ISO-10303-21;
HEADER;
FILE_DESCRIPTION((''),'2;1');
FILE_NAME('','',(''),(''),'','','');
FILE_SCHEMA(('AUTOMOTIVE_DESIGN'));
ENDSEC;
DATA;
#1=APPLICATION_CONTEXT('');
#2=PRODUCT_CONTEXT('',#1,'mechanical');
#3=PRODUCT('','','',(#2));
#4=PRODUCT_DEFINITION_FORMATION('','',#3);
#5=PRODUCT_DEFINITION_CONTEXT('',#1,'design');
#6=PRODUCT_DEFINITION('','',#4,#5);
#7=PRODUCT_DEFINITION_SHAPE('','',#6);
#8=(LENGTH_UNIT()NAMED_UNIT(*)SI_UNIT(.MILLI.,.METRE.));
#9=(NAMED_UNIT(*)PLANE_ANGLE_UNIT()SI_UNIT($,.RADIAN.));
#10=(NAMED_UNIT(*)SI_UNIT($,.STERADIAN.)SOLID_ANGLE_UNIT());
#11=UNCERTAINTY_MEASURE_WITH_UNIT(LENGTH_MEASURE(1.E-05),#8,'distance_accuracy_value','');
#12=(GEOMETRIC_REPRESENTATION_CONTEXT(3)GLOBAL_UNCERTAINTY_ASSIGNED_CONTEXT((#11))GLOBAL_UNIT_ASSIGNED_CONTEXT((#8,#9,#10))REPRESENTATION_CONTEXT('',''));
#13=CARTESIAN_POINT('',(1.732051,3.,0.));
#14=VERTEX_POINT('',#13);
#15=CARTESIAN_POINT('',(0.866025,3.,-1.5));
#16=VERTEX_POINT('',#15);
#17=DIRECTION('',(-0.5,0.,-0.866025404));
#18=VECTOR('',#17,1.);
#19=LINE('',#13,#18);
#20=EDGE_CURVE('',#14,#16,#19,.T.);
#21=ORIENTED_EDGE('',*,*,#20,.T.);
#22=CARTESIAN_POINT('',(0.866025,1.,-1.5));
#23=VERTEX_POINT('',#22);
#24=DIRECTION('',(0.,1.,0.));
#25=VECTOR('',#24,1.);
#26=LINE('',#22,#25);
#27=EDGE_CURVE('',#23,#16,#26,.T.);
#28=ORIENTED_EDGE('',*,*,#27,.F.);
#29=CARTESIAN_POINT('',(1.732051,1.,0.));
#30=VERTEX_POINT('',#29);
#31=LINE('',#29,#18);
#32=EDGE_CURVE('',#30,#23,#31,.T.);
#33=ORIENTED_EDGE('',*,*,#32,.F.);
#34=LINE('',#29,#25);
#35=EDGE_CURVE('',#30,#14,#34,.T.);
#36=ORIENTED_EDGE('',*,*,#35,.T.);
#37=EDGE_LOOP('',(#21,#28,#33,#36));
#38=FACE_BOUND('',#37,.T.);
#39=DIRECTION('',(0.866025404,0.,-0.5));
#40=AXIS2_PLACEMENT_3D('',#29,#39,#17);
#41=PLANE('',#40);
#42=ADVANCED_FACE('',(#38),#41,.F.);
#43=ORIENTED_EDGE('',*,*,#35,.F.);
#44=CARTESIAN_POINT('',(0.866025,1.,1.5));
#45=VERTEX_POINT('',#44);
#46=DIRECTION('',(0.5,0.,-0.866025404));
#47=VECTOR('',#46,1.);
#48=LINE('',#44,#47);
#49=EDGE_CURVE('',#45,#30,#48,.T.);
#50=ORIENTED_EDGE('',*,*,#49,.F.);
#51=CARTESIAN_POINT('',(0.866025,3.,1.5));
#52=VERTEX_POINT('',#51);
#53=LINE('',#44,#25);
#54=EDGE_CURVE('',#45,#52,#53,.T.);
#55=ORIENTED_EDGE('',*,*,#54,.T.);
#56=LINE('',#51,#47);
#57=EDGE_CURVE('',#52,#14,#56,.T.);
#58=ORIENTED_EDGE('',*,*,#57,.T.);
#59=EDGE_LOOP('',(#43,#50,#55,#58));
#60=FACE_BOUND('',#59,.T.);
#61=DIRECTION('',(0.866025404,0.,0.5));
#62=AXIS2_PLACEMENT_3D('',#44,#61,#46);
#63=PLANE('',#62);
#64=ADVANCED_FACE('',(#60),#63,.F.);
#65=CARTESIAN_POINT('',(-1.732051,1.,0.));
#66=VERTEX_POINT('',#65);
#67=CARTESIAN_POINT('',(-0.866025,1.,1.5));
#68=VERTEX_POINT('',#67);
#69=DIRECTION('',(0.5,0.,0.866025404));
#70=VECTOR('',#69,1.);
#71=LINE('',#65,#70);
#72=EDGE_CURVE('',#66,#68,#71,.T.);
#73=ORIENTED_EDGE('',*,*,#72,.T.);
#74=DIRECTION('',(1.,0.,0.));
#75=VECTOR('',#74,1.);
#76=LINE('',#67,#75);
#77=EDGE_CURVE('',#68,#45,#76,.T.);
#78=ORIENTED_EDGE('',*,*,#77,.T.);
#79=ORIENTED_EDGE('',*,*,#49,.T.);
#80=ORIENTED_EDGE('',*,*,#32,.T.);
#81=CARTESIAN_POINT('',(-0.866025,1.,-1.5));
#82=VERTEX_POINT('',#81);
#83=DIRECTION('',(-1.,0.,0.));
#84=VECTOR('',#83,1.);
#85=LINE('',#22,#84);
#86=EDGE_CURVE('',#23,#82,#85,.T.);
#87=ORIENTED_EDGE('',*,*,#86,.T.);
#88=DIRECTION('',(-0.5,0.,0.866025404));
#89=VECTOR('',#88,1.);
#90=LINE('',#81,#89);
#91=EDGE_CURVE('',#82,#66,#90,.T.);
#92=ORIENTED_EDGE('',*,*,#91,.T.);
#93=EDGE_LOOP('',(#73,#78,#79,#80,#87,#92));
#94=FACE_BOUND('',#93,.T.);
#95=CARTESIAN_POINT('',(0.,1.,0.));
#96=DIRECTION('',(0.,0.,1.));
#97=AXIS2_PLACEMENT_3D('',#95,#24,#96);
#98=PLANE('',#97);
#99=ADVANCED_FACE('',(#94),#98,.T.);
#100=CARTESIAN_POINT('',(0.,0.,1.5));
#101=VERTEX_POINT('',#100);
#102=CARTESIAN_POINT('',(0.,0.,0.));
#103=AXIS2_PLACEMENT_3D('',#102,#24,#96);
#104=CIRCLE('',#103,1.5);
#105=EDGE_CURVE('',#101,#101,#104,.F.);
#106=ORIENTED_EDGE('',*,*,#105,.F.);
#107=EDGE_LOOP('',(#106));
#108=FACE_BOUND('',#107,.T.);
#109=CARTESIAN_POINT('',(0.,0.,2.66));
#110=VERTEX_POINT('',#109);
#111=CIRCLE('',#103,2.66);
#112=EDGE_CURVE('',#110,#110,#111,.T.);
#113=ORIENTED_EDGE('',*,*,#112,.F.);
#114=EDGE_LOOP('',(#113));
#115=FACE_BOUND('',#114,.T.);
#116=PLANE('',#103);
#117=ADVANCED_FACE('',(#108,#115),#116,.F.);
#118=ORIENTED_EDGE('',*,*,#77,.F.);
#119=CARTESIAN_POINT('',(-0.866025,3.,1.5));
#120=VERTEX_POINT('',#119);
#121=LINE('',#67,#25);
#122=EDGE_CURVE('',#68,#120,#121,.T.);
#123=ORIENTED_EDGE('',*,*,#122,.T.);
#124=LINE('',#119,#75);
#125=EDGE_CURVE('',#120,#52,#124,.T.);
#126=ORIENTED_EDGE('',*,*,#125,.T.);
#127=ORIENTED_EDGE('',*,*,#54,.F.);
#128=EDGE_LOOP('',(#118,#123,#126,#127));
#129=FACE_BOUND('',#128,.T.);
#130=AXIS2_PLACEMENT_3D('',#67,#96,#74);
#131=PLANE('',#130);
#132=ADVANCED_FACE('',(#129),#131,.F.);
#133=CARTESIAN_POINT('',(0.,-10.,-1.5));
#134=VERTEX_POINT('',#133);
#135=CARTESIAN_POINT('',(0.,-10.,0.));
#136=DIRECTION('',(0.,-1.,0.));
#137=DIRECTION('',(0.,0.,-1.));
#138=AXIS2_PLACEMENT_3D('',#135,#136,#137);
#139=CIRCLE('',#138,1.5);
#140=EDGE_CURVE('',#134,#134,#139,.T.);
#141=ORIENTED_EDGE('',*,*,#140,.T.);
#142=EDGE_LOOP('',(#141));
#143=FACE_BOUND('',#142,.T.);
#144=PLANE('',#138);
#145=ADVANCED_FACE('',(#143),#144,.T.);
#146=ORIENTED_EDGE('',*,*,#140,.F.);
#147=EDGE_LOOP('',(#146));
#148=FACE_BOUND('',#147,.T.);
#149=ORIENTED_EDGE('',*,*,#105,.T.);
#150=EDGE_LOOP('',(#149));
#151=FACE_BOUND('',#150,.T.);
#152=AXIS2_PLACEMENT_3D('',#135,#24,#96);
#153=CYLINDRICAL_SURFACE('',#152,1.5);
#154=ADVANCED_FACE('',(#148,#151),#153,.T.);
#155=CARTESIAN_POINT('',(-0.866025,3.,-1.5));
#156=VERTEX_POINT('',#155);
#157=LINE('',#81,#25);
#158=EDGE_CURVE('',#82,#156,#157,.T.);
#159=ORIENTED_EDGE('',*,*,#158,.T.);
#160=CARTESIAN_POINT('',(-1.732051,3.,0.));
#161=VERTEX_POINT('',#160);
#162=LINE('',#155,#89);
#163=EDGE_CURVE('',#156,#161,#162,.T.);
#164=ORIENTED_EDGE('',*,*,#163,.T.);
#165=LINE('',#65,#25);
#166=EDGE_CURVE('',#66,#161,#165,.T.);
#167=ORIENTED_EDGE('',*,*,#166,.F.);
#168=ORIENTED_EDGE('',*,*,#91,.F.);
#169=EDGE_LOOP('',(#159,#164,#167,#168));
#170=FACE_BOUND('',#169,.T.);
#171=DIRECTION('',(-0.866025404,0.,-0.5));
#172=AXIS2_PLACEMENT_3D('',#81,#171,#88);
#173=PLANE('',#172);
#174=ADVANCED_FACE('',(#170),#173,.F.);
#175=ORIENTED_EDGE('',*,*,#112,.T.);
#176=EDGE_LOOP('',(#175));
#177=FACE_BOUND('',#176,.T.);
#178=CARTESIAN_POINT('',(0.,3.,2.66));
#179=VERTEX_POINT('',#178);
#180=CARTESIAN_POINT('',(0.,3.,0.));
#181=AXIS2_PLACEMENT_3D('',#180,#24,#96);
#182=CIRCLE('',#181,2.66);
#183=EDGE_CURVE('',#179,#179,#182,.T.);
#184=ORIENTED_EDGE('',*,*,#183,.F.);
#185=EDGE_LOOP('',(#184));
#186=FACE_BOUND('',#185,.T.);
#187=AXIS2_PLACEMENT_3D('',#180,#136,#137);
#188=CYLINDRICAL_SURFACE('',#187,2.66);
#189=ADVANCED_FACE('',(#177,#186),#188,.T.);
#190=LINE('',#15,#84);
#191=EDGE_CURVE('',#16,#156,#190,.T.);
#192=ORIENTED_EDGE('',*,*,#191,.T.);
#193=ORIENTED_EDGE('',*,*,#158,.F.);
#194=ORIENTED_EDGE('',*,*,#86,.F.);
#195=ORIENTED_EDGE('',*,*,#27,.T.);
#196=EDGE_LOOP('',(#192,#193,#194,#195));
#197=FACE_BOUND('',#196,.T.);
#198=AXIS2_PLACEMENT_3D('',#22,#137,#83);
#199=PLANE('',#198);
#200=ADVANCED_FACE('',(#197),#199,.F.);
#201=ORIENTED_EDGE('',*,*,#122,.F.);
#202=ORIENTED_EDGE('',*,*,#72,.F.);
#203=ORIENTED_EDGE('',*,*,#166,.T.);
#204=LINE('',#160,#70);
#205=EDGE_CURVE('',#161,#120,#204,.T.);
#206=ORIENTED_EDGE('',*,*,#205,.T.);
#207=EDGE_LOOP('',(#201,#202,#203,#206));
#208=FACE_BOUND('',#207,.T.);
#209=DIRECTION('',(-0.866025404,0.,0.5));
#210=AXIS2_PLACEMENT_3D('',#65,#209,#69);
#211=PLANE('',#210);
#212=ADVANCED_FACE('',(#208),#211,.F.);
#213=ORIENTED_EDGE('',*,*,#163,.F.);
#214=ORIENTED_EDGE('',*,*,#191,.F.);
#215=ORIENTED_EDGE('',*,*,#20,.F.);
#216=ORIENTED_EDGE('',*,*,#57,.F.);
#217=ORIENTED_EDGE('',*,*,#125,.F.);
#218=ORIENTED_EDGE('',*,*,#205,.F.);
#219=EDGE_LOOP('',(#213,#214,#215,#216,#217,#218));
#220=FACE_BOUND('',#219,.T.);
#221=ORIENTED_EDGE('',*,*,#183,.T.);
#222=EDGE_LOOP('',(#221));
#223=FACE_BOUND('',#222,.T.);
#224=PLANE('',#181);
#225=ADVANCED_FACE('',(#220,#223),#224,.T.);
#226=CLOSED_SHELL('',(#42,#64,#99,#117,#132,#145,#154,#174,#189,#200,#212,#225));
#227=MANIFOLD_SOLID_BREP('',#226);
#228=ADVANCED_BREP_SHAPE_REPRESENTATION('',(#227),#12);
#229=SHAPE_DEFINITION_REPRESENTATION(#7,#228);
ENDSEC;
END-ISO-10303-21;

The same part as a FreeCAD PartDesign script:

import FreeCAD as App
import Part
import Sketcher
from FreeCAD import Vector
Q = App.Units.Quantity

doc = App.newDocument("Part")
params = doc.addObject("Spreadsheet::Sheet", "Params")
for row, (alias, value) in enumerate([
    ("sketch1_diameter", "5.32 mm"),
    ("pad1_length", "3 mm"),
    ("pocket1_length", "2 mm"),
    ("sketch3_diameter", "3 mm"),
    ("pad2_length", "10 mm"),
], start=1):
    params.set(f"A{row}", alias)
    params.set(f"B{row}", "=" + value)
    params.setAlias(f"B{row}", alias)

body = doc.addObject("PartDesign::Body", "Body")

# Sketch on XZ plane
sketch1 = body.newObject("Sketcher::SketchObject", "Sketch")
sketch1.AttachmentSupport = (doc.getObject("XZ_Plane"), [""])
sketch1.MapMode = "FlatFace"
sketch1.addGeometry(Part.Circle(Vector(0, 0, 0), Vector(0, 0, 1), 2.66), False)
sketch1.addConstraint(Sketcher.Constraint("Coincident", 0, 3, -1, 1))
sketch1.addConstraint(Sketcher.Constraint("Diameter", 0, 5.32))
sketch1.setExpression("Constraints[1]", "Params.sketch1_diameter")
pad1 = body.newObject("PartDesign::Pad", "Pad")
pad1.Profile = sketch1
pad1.setExpression("Length", "Params.pad1_length")
pad1.Reversed = True

# Sketch on XZ plane
sketch2 = body.newObject("Sketcher::SketchObject", "Sketch001")
sketch2.AttachmentSupport = (doc.getObject("XZ_Plane"), [""])
sketch2.MapMode = "FlatFace"
sketch2.AttachmentOffset = App.Placement(Vector(0, 0, -3), App.Rotation())
sketch2.addGeometry(Part.LineSegment(Vector(1.732051, 0, 0), Vector(0.866025, -1.5, 0)), False)
sketch2.addGeometry(Part.LineSegment(Vector(0.866025, -1.5, 0), Vector(-0.866025, -1.5, 0)), False)
sketch2.addGeometry(Part.LineSegment(Vector(-0.866025, -1.5, 0), Vector(-1.732051, 0, 0)), False)
sketch2.addGeometry(Part.LineSegment(Vector(-1.732051, 0, 0), Vector(-0.866025, 1.5, 0)), False)
sketch2.addGeometry(Part.LineSegment(Vector(-0.866025, 1.5, 0), Vector(0.866025, 1.5, 0)), False)
sketch2.addGeometry(Part.LineSegment(Vector(0.866025, 1.5, 0), Vector(1.732051, 0, 0)), False)
sketch2.addConstraint(Sketcher.Constraint("Coincident", 0, 2, 1, 1))
sketch2.addConstraint(Sketcher.Constraint("Coincident", 1, 2, 2, 1))
sketch2.addConstraint(Sketcher.Constraint("Coincident", 2, 2, 3, 1))
sketch2.addConstraint(Sketcher.Constraint("Coincident", 3, 2, 4, 1))
sketch2.addConstraint(Sketcher.Constraint("Coincident", 4, 2, 5, 1))
sketch2.addConstraint(Sketcher.Constraint("Coincident", 5, 2, 0, 1))
sketch2.addConstraint(Sketcher.Constraint("Horizontal", 1))
sketch2.addConstraint(Sketcher.Constraint("Horizontal", 4))
sketch2.addConstraint(Sketcher.Constraint("Symmetric", 0, 2, 3, 2, -1, 1))
sketch2.addConstraint(Sketcher.Constraint("Symmetric", 2, 2, 5, 2, -1, 1))
sketch2.addConstraint(Sketcher.Constraint("PointOnObject", 2, 2, -1))
sketch2.addConstraint(Sketcher.Constraint("Parallel", 2, 5))
sketch2.addConstraint(Sketcher.Constraint("Vertical", 1, 2, 3, 2))
sketch2.addConstraint(Sketcher.Constraint("Angle", 0, Q("-120 deg")))
sketch2.addConstraint(Sketcher.Constraint("DistanceY", 1, 2, 3, 2, 3.0))
sketch2.addConstraint(Sketcher.Constraint("DistanceX", 1, 2, 1, 1, 1.732051))
pocket1 = body.newObject("PartDesign::Pocket", "Pocket")
pocket1.Profile = sketch2
pocket1.setExpression("Length", "Params.pocket1_length")
pocket1.Reversed = True

# Sketch on XZ plane
sketch3 = body.newObject("Sketcher::SketchObject", "Sketch002")
sketch3.AttachmentSupport = (doc.getObject("XZ_Plane"), [""])
sketch3.MapMode = "FlatFace"
sketch3.addGeometry(Part.Circle(Vector(0, 0, 0), Vector(0, 0, 1), 1.5), False)
sketch3.addConstraint(Sketcher.Constraint("Coincident", 0, 3, -1, 1))
sketch3.addConstraint(Sketcher.Constraint("Diameter", 0, 3.0))
sketch3.setExpression("Constraints[1]", "Params.sketch3_diameter")
pad2 = body.newObject("PartDesign::Pad", "Pad001")
pad2.Profile = sketch3
pad2.setExpression("Length", "Params.pad2_length")

doc.recompute()
